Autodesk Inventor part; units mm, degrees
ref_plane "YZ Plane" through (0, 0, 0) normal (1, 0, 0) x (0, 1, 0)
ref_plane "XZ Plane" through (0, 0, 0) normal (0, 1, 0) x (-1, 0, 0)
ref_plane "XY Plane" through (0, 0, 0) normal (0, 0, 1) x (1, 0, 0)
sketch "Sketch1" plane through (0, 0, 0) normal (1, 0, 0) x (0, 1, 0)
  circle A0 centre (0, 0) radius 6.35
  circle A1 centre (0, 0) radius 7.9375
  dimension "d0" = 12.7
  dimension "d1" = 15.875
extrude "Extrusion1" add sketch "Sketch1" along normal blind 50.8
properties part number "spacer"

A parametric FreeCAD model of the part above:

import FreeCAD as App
import Part
import Sketcher

V = App.Vector
Q = App.Units.Quantity

doc = App.newDocument("Part")
params = doc.addObject("Spreadsheet::Sheet", "Params")
for row, (alias, value) in enumerate([
    ("sketch1_diameter", "0.5 in"),
    ("sketch1_diameter2", "0.625 in"),
    ("pad1_length", "2 in"),
], start=1):
    params.set(f"A{row}", alias)
    params.set(f"B{row}", "=" + value)
    params.setAlias(f"B{row}", alias)

body = doc.addObject("PartDesign::Body", "Body")

sketch1 = doc.addObject("Sketcher::SketchObject", "Sketch")
body.addObject(sketch1)
sketch1.AttachmentSupport = (doc.YZ_Plane, [""])
sketch1.MapMode = "FlatFace"
sketch1.addGeometry([
    Part.Circle(V(0, 0, 0), V(0, 0, 1), 8),
    Part.Circle(V(0, 0, 0), V(0, 0, 1), 6),
], False)
sketch1.addConstraint([
    Sketcher.Constraint("Coincident", 0, 3, -1, 1),
    Sketcher.Constraint("Coincident", 1, 3, -1, 1),
    Sketcher.Constraint("Diameter", 1, Q("0.5 in")),
    Sketcher.Constraint("Diameter", 0, Q("0.625 in")),
])
sketch1.setExpression("Constraints[2]", "Params.sketch1_diameter")
sketch1.setExpression("Constraints[3]", "Params.sketch1_diameter2")
pad1 = doc.addObject("PartDesign::Pad", "Pad")
body.addObject(pad1)
pad1.Profile = sketch1
pad1.setExpression("Length", "Params.pad1_length")

doc.recompute()
